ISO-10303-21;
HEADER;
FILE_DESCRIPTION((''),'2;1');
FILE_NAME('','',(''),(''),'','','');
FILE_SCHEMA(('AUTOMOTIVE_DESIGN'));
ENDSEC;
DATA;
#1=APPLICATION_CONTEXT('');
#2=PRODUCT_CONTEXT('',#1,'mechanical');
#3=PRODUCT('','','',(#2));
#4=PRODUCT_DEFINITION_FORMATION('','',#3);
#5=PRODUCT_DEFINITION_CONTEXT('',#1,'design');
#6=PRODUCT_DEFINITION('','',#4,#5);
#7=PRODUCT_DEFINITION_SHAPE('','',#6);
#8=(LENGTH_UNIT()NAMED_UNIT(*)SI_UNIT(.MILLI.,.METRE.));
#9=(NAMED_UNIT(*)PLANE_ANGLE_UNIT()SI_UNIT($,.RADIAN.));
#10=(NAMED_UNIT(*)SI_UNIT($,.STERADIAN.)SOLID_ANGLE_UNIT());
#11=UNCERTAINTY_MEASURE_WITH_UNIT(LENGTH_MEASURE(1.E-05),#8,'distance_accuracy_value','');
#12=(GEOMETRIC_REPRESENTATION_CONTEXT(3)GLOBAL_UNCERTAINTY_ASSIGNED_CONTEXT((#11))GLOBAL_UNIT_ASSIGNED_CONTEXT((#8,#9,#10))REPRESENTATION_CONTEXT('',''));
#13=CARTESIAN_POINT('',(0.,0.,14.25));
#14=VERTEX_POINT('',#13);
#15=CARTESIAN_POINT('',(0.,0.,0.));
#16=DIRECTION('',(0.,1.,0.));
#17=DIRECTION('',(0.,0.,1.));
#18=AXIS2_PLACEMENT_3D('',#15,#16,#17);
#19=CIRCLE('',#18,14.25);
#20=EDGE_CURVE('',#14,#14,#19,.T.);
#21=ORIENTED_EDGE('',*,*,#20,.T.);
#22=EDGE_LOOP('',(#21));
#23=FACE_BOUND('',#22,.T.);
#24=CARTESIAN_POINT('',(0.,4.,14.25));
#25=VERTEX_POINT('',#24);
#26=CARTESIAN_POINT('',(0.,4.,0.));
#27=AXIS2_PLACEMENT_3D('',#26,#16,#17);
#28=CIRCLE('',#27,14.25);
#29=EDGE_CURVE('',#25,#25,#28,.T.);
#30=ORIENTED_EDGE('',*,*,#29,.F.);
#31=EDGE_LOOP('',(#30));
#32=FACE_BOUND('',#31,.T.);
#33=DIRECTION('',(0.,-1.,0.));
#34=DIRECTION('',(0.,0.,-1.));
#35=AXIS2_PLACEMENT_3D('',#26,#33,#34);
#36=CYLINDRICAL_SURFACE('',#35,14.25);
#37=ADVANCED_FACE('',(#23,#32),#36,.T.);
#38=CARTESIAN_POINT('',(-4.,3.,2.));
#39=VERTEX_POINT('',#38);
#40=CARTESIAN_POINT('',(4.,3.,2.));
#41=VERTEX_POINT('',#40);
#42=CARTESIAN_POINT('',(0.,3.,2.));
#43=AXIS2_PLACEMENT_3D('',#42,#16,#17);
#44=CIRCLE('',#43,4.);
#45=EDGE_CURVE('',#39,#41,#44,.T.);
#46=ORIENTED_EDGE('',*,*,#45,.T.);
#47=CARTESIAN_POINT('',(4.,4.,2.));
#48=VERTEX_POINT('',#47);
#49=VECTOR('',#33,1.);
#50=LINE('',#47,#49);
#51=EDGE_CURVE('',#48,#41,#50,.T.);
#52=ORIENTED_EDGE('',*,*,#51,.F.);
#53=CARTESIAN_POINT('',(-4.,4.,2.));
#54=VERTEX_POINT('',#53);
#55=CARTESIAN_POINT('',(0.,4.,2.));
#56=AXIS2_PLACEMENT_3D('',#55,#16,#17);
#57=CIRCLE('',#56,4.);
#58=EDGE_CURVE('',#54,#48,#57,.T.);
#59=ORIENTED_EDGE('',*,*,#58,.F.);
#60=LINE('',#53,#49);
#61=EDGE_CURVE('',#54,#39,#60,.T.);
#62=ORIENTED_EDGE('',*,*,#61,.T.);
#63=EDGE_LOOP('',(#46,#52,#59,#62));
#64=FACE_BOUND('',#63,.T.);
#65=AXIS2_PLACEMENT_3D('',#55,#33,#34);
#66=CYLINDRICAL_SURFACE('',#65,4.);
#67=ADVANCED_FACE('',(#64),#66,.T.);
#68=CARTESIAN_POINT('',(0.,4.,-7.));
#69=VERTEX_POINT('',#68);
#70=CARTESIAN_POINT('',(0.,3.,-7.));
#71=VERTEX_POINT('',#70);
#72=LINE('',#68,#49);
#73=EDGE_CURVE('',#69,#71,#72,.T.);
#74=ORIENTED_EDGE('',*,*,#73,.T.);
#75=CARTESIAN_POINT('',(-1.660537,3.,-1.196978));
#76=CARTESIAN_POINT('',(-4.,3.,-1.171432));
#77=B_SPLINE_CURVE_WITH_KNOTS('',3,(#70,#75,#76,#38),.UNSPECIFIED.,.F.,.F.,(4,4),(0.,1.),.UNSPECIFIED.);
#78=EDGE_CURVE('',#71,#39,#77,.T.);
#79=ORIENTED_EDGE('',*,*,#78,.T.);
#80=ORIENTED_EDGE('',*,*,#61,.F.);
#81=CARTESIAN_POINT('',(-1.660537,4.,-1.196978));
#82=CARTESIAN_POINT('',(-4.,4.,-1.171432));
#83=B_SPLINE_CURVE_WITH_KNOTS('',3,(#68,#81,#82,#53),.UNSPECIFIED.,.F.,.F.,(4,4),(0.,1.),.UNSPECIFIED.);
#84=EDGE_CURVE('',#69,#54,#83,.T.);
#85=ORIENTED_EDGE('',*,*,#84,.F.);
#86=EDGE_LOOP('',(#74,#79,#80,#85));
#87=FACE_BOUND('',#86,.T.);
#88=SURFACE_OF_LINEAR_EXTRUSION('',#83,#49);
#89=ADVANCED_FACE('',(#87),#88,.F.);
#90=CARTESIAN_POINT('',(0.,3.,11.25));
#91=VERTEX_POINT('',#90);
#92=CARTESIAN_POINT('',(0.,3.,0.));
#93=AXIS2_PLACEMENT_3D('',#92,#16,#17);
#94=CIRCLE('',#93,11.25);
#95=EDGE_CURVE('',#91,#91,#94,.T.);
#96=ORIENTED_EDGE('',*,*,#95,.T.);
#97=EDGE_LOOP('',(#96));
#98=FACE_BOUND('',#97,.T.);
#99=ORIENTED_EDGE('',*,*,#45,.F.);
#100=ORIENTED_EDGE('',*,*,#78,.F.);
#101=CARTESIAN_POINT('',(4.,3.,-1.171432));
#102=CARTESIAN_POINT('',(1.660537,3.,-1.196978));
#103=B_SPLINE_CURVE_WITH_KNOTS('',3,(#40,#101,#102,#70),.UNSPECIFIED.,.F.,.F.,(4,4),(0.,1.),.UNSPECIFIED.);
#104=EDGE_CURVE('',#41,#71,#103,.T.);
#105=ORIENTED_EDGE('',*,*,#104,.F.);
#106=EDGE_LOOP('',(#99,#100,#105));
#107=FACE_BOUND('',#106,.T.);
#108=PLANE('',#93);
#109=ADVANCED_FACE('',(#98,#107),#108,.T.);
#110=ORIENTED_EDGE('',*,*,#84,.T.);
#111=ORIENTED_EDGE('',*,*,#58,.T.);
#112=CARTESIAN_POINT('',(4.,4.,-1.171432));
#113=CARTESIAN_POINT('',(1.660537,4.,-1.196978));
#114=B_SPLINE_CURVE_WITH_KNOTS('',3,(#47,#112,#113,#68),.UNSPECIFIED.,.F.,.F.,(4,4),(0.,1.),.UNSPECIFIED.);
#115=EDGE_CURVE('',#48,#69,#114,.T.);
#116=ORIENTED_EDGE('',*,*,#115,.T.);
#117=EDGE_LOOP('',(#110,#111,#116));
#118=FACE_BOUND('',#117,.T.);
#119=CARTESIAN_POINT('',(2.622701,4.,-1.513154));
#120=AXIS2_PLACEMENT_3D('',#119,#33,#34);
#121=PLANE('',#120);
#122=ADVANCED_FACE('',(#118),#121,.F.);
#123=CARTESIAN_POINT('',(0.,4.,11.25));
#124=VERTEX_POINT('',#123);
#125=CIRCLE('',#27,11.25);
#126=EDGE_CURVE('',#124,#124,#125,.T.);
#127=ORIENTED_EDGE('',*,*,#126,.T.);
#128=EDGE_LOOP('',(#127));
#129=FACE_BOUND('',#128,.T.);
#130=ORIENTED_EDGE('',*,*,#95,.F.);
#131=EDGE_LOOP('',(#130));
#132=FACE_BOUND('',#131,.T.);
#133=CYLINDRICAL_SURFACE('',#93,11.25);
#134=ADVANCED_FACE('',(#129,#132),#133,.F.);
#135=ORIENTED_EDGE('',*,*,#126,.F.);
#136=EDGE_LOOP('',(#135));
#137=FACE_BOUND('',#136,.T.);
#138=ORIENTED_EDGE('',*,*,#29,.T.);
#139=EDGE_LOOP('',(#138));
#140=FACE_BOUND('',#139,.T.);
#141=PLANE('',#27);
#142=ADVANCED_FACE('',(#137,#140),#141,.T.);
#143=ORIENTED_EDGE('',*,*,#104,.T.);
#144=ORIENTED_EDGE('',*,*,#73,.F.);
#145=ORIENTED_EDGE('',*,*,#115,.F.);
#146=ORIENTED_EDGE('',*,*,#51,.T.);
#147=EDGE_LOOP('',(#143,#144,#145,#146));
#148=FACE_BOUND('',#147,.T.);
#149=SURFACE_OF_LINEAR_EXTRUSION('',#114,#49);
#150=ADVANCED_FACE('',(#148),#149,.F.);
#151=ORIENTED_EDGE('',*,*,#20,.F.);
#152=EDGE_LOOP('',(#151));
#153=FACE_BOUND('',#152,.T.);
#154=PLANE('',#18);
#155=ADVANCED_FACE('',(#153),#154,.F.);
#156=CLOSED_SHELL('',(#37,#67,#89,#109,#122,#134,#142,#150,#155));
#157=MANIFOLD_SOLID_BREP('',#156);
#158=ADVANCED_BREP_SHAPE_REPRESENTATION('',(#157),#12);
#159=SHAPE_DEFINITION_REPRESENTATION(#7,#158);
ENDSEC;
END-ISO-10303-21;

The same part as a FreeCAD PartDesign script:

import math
import FreeCAD as App
import Part
import Sketcher

V = App.Vector
Q = App.Units.Quantity

doc = App.newDocument("Part")
body = doc.addObject("PartDesign::Body", "Body")

# Sketch on XZ plane
sketch1 = doc.addObject("Sketcher::SketchObject", "Sketch")
body.addObject(sketch1)
sketch1.AttachmentSupport = (doc.XZ_Plane, [""])
sketch1.MapMode = "FlatFace"
sketch1.addGeometry(Part.Circle(V(0, 0, 0), V(0, 0, 1), 14), False)
sketch1.addConstraint([
    Sketcher.Constraint("Coincident", 0, 3, -1, 1),
    Sketcher.Constraint("Diameter", 0, Q("28.5 mm")),
])
pad1 = doc.addObject("PartDesign::Pad", "Pad")
body.addObject(pad1)
pad1.Profile = sketch1
pad1.Length = 4
pad1.Reversed = True

# Sketch on XZ plane
sketch2 = doc.addObject("Sketcher::SketchObject", "Sketch001")
body.addObject(sketch2)
sketch2.AttachmentSupport = (doc.XZ_Plane, [""])
sketch2.MapMode = "FlatFace"
sketch2.AttachmentOffset = App.Placement(V(0, 0, -4), App.Rotation())
sketch2.addGeometry(Part.Circle(V(0, 0, 0), V(0, 0, 1), 11), False)
sketch2.addConstraint([
    Sketcher.Constraint("Coincident", 0, 3, -1, 1),
    Sketcher.Constraint("Diameter", 0, Q("22.5 mm")),
])
pocket1 = doc.addObject("PartDesign::Pocket", "Pocket")
body.addObject(pocket1)
pocket1.Profile = sketch2
pocket1.Length = 1
pocket1.Reversed = True

# Sketch on XZ plane
sketch3 = doc.addObject("Sketcher::SketchObject", "Sketch002")
body.addObject(sketch3)
sketch3.AttachmentSupport = (doc.XZ_Plane, [""])
sketch3.MapMode = "FlatFace"
sketch3.AttachmentOffset = App.Placement(V(0, 0, -3), App.Rotation())
sketch3.addGeometry([
    Part.ArcOfCircle(Part.Circle(V(0, 2, 0), V(0, 0, 1), 4), math.radians(0), math.radians(180)),
    Part.BSplineCurve([V(4, 2, 0), V(4, -1.171432, 0), V(1.660537, -1.196978, 0), V(0, -7, 0)], [4, 4], [0, 1], False, 3, [1, 1, 1, 1], False),
    Part.BSplineCurve([V(-4, 2, 0), V(-4, -1.171432, 0), V(-1.660537, -1.196978, 0), V(0, -7, 0)], [4, 4], [0, 1], False, 3, [1, 1, 1, 1], False),
], False)
sketch3.addConstraint([
    Sketcher.Constraint("Block", 1),
    Sketcher.Constraint("Block", 2),
    Sketcher.Constraint("Coincident", 0, 1, 1, 1),
    Sketcher.Constraint("Coincident", 2, 1, 0, 2),
    Sketcher.Constraint("DistanceY", -1, 1, 0, 3, Q("2 mm")),
])
pad2 = doc.addObject("PartDesign::Pad", "Pad001")
body.addObject(pad2)
pad2.Profile = sketch3
pad2.Length = 1
pad2.Reversed = True

doc.recompute()
